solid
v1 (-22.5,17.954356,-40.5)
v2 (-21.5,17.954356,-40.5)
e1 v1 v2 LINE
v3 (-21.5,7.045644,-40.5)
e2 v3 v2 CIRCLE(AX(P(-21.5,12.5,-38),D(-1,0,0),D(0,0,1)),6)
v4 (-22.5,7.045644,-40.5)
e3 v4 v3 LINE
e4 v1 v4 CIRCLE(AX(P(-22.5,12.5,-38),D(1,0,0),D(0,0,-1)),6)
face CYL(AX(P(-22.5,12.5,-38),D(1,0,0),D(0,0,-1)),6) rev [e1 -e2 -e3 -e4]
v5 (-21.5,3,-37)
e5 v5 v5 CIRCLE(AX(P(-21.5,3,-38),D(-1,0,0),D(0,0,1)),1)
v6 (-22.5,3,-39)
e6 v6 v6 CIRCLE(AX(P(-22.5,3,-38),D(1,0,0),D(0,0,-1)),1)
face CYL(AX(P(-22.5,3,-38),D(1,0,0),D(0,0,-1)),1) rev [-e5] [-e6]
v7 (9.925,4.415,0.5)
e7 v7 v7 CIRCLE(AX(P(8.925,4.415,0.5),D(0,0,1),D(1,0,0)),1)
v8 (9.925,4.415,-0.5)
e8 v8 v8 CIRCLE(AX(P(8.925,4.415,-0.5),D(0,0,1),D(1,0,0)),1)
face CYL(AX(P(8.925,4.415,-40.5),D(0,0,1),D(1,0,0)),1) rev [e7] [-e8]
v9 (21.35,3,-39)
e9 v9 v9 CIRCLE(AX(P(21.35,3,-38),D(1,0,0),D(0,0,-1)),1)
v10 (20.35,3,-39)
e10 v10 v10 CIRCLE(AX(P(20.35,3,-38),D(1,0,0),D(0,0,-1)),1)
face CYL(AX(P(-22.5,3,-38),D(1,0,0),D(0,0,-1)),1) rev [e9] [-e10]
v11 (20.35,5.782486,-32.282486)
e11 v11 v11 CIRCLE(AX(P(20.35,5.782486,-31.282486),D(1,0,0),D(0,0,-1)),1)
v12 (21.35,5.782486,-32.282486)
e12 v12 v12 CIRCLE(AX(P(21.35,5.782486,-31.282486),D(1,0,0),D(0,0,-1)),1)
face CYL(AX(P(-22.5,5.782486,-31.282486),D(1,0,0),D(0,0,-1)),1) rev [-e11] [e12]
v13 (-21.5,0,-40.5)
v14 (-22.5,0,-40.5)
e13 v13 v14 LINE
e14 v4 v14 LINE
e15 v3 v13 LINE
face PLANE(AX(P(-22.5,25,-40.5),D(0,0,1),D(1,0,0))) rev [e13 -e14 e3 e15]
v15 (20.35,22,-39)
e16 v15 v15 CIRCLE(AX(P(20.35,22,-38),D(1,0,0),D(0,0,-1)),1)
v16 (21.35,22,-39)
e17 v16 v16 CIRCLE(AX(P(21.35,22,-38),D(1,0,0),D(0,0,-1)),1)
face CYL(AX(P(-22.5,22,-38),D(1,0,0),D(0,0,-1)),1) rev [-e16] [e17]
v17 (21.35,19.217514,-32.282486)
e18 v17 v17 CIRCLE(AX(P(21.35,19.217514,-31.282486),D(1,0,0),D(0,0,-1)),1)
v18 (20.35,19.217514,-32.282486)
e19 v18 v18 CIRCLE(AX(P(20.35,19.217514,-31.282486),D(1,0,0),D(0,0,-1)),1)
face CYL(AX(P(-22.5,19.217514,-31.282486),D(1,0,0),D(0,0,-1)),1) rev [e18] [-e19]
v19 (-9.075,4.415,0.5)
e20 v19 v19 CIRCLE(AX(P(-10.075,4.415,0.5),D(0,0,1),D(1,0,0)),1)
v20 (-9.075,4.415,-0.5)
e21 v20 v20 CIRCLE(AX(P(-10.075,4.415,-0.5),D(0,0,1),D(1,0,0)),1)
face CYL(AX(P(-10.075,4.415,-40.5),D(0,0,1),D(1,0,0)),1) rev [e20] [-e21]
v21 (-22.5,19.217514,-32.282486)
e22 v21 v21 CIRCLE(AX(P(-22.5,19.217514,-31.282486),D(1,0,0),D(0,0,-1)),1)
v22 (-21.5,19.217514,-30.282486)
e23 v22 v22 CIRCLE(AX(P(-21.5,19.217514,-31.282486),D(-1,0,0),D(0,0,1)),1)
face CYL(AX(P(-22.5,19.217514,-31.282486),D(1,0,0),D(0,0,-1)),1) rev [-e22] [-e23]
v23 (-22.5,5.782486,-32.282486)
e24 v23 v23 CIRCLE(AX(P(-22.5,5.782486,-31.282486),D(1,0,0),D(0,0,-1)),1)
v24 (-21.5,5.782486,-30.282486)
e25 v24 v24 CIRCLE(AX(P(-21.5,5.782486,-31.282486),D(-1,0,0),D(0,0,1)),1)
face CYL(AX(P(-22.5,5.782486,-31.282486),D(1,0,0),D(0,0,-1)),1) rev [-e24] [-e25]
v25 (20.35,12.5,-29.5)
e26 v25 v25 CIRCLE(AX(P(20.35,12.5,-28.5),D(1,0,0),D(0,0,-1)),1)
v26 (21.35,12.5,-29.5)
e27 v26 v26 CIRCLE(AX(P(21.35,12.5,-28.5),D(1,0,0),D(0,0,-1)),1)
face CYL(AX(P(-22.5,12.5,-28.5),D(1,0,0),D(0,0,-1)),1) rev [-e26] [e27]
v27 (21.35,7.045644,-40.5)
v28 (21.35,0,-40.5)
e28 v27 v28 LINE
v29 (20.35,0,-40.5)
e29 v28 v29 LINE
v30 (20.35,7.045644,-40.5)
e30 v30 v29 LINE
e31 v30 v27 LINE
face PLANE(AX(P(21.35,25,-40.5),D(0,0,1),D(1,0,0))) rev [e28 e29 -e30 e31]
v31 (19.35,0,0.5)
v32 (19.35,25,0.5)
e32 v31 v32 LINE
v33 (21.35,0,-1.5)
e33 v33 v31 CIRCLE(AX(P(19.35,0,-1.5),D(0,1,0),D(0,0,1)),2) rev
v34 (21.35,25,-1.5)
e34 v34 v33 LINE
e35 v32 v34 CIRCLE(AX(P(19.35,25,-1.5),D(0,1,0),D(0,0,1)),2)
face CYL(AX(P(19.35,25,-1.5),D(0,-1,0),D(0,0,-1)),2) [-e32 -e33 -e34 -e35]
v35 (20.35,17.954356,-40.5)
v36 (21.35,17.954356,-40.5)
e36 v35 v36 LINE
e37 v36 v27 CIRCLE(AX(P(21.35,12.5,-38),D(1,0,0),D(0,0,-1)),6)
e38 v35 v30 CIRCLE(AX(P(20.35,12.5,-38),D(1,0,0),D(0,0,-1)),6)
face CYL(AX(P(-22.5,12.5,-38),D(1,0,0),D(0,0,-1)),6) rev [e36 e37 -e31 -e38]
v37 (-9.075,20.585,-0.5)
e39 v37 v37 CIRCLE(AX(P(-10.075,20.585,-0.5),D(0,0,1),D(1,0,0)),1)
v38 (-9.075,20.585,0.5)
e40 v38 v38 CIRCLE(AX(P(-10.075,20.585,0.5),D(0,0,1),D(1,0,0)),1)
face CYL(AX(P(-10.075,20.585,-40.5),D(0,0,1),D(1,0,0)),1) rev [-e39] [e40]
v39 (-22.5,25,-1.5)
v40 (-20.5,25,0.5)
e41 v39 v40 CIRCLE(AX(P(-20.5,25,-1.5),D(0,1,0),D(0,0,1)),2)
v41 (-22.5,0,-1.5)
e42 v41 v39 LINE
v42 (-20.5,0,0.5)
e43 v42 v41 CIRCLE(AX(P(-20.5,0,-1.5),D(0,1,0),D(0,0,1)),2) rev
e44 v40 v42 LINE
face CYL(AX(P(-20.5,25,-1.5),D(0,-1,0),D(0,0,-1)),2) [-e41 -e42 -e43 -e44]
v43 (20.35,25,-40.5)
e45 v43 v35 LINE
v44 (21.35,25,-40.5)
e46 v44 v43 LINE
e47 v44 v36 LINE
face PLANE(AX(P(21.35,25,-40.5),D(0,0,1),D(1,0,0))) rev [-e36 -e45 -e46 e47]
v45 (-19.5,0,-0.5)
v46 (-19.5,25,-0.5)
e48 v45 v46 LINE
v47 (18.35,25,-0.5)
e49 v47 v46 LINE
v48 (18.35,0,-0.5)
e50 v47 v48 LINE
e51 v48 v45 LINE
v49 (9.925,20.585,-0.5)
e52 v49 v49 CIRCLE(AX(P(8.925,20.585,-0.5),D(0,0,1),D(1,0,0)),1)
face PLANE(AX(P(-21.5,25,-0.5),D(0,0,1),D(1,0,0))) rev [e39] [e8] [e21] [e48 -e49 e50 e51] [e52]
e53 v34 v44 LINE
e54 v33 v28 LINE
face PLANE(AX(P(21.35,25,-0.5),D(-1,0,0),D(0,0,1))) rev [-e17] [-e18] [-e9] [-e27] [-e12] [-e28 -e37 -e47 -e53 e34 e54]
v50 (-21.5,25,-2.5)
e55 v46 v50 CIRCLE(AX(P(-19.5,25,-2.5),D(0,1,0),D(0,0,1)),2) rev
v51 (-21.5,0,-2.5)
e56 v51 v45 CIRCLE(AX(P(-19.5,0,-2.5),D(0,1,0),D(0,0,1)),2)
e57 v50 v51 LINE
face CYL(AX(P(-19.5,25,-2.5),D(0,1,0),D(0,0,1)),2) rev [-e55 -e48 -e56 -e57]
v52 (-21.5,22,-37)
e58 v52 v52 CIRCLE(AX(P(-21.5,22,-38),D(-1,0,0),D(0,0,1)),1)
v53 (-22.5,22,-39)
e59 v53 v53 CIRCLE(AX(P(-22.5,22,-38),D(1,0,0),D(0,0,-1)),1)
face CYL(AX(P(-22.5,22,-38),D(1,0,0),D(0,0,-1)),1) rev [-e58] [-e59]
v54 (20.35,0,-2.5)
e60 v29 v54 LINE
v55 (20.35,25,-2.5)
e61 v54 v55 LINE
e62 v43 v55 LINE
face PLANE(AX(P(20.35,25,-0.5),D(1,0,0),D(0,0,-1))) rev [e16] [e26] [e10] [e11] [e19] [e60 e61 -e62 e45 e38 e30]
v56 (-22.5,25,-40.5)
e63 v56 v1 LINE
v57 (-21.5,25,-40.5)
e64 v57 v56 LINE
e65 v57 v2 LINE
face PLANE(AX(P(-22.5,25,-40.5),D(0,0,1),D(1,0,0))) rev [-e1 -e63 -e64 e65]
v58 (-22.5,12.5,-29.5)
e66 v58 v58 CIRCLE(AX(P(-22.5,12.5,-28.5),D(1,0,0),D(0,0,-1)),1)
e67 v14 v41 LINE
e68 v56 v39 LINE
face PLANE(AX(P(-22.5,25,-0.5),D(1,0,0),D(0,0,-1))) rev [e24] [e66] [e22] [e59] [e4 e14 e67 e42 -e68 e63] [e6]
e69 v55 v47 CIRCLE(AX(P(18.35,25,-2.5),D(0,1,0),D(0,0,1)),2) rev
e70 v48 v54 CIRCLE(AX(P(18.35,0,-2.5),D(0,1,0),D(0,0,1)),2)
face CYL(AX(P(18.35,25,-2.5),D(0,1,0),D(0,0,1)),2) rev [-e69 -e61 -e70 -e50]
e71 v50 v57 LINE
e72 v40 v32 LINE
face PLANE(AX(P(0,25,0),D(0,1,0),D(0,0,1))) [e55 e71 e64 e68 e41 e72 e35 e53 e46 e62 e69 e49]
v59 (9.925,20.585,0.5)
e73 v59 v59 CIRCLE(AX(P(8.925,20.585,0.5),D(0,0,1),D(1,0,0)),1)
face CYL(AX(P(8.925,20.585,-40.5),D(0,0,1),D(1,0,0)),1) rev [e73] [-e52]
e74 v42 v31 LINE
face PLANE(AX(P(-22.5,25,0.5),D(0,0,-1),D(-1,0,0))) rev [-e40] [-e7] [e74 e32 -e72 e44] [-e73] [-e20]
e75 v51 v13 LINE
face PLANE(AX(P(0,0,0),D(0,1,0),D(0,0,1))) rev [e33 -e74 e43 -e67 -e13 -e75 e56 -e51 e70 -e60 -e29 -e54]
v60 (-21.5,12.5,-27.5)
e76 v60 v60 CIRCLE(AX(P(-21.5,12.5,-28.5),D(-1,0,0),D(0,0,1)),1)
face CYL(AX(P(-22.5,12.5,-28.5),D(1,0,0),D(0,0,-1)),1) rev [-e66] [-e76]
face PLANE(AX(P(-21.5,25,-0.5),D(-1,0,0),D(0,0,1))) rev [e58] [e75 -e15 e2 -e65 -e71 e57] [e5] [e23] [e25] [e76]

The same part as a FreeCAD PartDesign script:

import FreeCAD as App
import Part
import Sketcher


def edges_at(feature, points):
    """Names of the edges that pass closest to the given points."""
    edges = feature.Shape.Edges
    near = lambda p: min(range(len(edges)), key=lambda i: edges[i].distToShape(Part.Vertex(*p))[0])
    return sorted({f"Edge{near(p) + 1}" for p in points})

doc = App.newDocument("Part")
body = doc.addObject("PartDesign::Body", "Body")

# Sketch on XZ plane
sketch1 = body.newObject("Sketcher::SketchObject", "Sketch")
sketch1.AttachmentSupport = (doc.getObject("XZ_Plane"), [""])
sketch1.MapMode = "FlatFace"
sketch1.addGeometry([
    Part.LineSegment(App.Vector(20.4, -0.5, 0), App.Vector(-21.5, -0.5, 0)),  # 0
    Part.LineSegment(App.Vector(-21.5, -0.5, 0), App.Vector(-21.5, -40.5, 0)),  # 1
    Part.LineSegment(App.Vector(-21.5, -40.5, 0), App.Vector(-22.5, -40.5, 0)),  # 2
    Part.LineSegment(App.Vector(-22.5, -40.5, 0), App.Vector(-22.5, 0.5, 0)),  # 3
    Part.LineSegment(App.Vector(-22.5, 0.5, 0), App.Vector(21.4, 0.5, 0)),  # 4
    Part.LineSegment(App.Vector(21.4, 0.5, 0), App.Vector(21.4, -40.5, 0)),  # 5
    Part.LineSegment(App.Vector(21.4, -40.5, 0), App.Vector(20.4, -40.5, 0)),  # 6
    Part.LineSegment(App.Vector(20.4, -40.5, 0), App.Vector(20.4, -0.5, 0)),  # 7
], False)
sketch1.addConstraint([
    Sketcher.Constraint("Coincident", 0, 2, 1, 1),
    Sketcher.Constraint("Coincident", 1, 2, 2, 1),
    Sketcher.Constraint("Coincident", 2, 2, 3, 1),
    Sketcher.Constraint("Coincident", 3, 2, 4, 1),
    Sketcher.Constraint("Coincident", 4, 2, 5, 1),
    Sketcher.Constraint("Coincident", 5, 2, 6, 1),
    Sketcher.Constraint("Coincident", 6, 2, 7, 1),
    Sketcher.Constraint("Coincident", 7, 2, 0, 1),
    Sketcher.Constraint("Horizontal", 0),
    Sketcher.Constraint("Vertical", 1),
    Sketcher.Constraint("Horizontal", 2),
    Sketcher.Constraint("Vertical", 3),
    Sketcher.Constraint("Horizontal", 4),
    Sketcher.Constraint("Vertical", 5),
    Sketcher.Constraint("Horizontal", 6),
    Sketcher.Constraint("Vertical", 7),
    Sketcher.Constraint("Horizontal", 2, 2, 5, 2),
    Sketcher.Constraint("Equal", 2, 6),
    Sketcher.Constraint("DistanceX", 2, 2, 2, 1, 1.0),
    Sketcher.Constraint("DistanceY", 1, 2, 1, 1, 40.0),
    Sketcher.Constraint("DistanceY", 3, 1, 3, 2, 41.0),
    Sketcher.Constraint("DistanceX", 0, 2, 0, 1, 41.85),
    Sketcher.Constraint("DistanceX", 0, 2, -1, 1, 21.5),
    Sketcher.Constraint("DistanceY", 0, 2, -1, 1, 0.5),
])
pad1 = body.newObject("PartDesign::Pad", "Pad")
pad1.Profile = sketch1
pad1.Length = 25
pad1.Reversed = True

# Sketch on YZ plane
sketch2 = body.newObject("Sketcher::SketchObject", "Sketch001")
sketch2.AttachmentSupport = (doc.getObject("YZ_Plane"), [""])
sketch2.MapMode = "FlatFace"
sketch2.AttachmentOffset = App.Placement(App.Vector(0, 0, 21.35), App.Rotation())
sketch2.addGeometry([
    Part.Circle(App.Vector(12.5, -28.5, 0), App.Vector(0, 0, 1), 1),  # 0
    Part.Circle(App.Vector(12.5, -38, 0), App.Vector(0, 0, 1), 6),  # 1
    Part.Circle(App.Vector(19.2, -31.3, 0), App.Vector(0, 0, 1), 1),  # 2
    Part.Circle(App.Vector(22, -38, 0), App.Vector(0, 0, 1), 1),  # 3
    Part.Circle(App.Vector(3, -38, 0), App.Vector(0, 0, 1), 1),  # 4
    Part.Circle(App.Vector(5.8, -31.3, 0), App.Vector(0, 0, 1), 1),  # 5
], False)
sketch2.addConstraint([
    Sketcher.Constraint("Equal", 0, 2),
    Sketcher.Constraint("Equal", 2, 3),
    Sketcher.Constraint("Equal", 3, 4),
    Sketcher.Constraint("Equal", 4, 5),
    Sketcher.Constraint("Horizontal", 1, 3, 3, 3),
    Sketcher.Constraint("Horizontal", 3, 3, 4, 3),
    Sketcher.Constraint("Horizontal", 2, 3, 5, 3),
    Sketcher.Constraint("Vertical", 0, 3, 1, 3),
    Sketcher.Constraint("Diameter", 0, 2.0),
    Sketcher.Constraint("Diameter", 1, 12.0),
    Sketcher.Constraint("DistanceY", 1, 3, -1, 1, 38.0),
    Sketcher.Constraint("DistanceX", -1, 1, 3, 3, 22.0),
    Sketcher.Constraint("DistanceX", -1, 1, 4, 3, 3.0),
    Sketcher.Constraint("DistanceX", -1, 1, 0, 3, 12.5),
    Sketcher.Constraint("DistanceY", 0, 3, -1, 1, 28.5),
    Sketcher.Constraint("DistanceX", 5, 3, 2, 3, 13.435029),
    Sketcher.Constraint("DistanceX", -1, 1, 2, 3, 19.217514),
    Sketcher.Constraint("DistanceY", 2, 3, -1, 1, 31.282486),
])
pocket1 = body.newObject("PartDesign::Pocket", "Pocket")
pocket1.Profile = sketch2
pocket1.Type = "ThroughAll"
doc.recompute()

fillet = body.newObject("PartDesign::Fillet", "Fillet")
fillet.Base = (pocket1, edges_at(pocket1, [
    (21.35, 12.5, 0.5),
    (-22.5, 12.5, 0.5),
    (-21.5, 12.5, -0.5),
    (20.35, 12.5, -0.5),
]))
fillet.Radius = 2

# Sketch on XY plane
sketch3 = body.newObject("Sketcher::SketchObject", "Sketch002")
sketch3.AttachmentSupport = (doc.getObject("XY_Plane"), [""])
sketch3.MapMode = "FlatFace"
sketch3.AttachmentOffset = App.Placement(App.Vector(0, 0, 0.5), App.Rotation())
sketch3.addGeometry([
    Part.Circle(App.Vector(-10.1, 20.6, 0), App.Vector(0, 0, 1), 1),
    Part.Circle(App.Vector(8.9, 20.6, 0), App.Vector(0, 0, 1), 1),
    Part.Circle(App.Vector(-10.1, 4.4, 0), App.Vector(0, 0, 1), 1),
    Part.Circle(App.Vector(8.9, 4.4, 0), App.Vector(0, 0, 1), 1),
], False)
sketch3.addConstraint([
    Sketcher.Constraint("Equal", 0, 1),
    Sketcher.Constraint("Equal", 1, 2),
    Sketcher.Constraint("Equal", 2, 3),
    Sketcher.Constraint("Horizontal", 0, 3, 1, 3),
    Sketcher.Constraint("Horizontal", 2, 3, 3, 3),
    Sketcher.Constraint("Vertical", 0, 3, 2, 3),
    Sketcher.Constraint("Vertical", 1, 3, 3, 3),
    Sketcher.Constraint("Diameter", 0, 2.0),
    Sketcher.Constraint("DistanceX", 0, 3, 1, 3, 19.0),
    Sketcher.Constraint("DistanceY", 2, 3, 0, 3, 16.17),
    Sketcher.Constraint("DistanceX", 0, 3, -1, 1, 10.075),
    Sketcher.Constraint("DistanceY", -1, 1, 0, 3, 20.585),
])
pocket2 = body.newObject("PartDesign::Pocket", "Pocket001")
pocket2.Profile = sketch3
pocket2.Type = "ThroughAll"

doc.recompute()
